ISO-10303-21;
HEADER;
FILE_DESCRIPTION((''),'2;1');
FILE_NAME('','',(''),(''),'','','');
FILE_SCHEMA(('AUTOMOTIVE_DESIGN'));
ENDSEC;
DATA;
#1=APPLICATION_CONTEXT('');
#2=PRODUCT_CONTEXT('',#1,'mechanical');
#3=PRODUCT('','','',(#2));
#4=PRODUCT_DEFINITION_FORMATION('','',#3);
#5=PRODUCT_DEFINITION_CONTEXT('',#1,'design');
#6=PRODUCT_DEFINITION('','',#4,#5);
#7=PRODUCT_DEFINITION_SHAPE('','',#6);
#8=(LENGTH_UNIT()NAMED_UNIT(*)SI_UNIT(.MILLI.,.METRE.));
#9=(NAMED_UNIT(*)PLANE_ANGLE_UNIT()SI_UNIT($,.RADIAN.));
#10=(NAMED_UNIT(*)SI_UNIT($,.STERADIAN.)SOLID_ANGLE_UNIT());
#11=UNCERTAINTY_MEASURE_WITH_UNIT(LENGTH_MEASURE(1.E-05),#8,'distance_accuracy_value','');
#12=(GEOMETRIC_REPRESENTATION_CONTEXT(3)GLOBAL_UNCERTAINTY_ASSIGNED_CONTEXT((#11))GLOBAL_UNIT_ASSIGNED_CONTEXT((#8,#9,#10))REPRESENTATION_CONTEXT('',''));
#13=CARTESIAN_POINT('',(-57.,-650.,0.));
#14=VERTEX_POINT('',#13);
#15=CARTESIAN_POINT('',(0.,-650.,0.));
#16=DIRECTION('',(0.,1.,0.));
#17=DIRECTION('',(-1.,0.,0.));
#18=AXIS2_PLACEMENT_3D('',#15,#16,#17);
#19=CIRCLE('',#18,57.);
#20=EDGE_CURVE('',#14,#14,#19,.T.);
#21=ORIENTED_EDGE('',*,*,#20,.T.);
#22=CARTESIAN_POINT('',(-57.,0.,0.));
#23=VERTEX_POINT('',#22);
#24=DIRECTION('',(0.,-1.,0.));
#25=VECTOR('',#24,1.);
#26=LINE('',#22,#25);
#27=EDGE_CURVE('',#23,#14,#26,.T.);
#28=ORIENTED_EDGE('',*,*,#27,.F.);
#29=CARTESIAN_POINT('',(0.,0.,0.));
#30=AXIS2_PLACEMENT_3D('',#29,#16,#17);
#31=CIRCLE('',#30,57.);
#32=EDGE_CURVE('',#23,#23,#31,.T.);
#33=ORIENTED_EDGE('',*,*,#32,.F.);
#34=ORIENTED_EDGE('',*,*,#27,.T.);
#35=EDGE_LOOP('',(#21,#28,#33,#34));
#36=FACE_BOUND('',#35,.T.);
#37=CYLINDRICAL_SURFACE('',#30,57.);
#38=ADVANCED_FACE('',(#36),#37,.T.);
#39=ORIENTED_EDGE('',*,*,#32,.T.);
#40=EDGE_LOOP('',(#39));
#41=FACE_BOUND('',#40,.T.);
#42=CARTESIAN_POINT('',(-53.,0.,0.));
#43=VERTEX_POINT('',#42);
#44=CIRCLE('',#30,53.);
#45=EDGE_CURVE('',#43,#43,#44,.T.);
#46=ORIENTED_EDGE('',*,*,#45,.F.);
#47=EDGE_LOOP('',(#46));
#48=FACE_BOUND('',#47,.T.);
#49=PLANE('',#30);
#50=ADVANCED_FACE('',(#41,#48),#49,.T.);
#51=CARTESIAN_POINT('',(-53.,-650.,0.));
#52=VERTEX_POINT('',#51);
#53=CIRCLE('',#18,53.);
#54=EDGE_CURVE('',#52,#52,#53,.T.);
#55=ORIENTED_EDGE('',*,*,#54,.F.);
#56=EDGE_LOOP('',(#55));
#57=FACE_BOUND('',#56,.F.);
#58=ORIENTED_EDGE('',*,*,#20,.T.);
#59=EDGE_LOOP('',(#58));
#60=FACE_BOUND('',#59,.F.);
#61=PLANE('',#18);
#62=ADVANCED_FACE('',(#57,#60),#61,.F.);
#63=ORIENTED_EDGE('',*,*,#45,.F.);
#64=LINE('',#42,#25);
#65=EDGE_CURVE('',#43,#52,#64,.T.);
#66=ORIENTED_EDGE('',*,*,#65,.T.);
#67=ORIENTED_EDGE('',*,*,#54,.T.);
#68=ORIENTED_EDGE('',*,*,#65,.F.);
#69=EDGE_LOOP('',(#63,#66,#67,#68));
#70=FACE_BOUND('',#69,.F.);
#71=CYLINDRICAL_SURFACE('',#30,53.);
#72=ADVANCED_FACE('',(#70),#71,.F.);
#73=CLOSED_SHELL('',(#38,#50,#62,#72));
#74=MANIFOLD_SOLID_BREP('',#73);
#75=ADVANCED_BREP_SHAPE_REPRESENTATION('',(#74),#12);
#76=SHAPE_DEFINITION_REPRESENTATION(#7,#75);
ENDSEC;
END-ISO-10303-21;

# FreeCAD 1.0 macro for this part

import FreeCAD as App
import Part
import Sketcher

V = App.Vector
Q = App.Units.Quantity

doc = App.newDocument("Part")
body = doc.addObject("PartDesign::Body", "Body")

sketch1 = body.newObject("Sketcher::SketchObject", "Sketch")
sketch1.AttachmentSupport = (doc.getObject("XZ_Plane"), [""])
sketch1.MapMode = "FlatFace"
sketch1.addGeometry([
    Part.Circle(V(0, 0, 0), V(0, 0, 1), 57),
    Part.Circle(V(0, 0, 0), V(0, 0, 1), 53),
], False)
sketch1.addConstraint([
    Sketcher.Constraint("Coincident", 0, 3, -1, 1),
    Sketcher.Constraint("Coincident", 1, 3, -1, 1),
    Sketcher.Constraint("Diameter", 0, Q("114 mm")),
    Sketcher.Constraint("Diameter", 1, Q("106 mm")),
])
pad1 = body.newObject("PartDesign::Pad", "Pad")
pad1.Profile = sketch1
pad1.Length = 650

doc.recompute()
